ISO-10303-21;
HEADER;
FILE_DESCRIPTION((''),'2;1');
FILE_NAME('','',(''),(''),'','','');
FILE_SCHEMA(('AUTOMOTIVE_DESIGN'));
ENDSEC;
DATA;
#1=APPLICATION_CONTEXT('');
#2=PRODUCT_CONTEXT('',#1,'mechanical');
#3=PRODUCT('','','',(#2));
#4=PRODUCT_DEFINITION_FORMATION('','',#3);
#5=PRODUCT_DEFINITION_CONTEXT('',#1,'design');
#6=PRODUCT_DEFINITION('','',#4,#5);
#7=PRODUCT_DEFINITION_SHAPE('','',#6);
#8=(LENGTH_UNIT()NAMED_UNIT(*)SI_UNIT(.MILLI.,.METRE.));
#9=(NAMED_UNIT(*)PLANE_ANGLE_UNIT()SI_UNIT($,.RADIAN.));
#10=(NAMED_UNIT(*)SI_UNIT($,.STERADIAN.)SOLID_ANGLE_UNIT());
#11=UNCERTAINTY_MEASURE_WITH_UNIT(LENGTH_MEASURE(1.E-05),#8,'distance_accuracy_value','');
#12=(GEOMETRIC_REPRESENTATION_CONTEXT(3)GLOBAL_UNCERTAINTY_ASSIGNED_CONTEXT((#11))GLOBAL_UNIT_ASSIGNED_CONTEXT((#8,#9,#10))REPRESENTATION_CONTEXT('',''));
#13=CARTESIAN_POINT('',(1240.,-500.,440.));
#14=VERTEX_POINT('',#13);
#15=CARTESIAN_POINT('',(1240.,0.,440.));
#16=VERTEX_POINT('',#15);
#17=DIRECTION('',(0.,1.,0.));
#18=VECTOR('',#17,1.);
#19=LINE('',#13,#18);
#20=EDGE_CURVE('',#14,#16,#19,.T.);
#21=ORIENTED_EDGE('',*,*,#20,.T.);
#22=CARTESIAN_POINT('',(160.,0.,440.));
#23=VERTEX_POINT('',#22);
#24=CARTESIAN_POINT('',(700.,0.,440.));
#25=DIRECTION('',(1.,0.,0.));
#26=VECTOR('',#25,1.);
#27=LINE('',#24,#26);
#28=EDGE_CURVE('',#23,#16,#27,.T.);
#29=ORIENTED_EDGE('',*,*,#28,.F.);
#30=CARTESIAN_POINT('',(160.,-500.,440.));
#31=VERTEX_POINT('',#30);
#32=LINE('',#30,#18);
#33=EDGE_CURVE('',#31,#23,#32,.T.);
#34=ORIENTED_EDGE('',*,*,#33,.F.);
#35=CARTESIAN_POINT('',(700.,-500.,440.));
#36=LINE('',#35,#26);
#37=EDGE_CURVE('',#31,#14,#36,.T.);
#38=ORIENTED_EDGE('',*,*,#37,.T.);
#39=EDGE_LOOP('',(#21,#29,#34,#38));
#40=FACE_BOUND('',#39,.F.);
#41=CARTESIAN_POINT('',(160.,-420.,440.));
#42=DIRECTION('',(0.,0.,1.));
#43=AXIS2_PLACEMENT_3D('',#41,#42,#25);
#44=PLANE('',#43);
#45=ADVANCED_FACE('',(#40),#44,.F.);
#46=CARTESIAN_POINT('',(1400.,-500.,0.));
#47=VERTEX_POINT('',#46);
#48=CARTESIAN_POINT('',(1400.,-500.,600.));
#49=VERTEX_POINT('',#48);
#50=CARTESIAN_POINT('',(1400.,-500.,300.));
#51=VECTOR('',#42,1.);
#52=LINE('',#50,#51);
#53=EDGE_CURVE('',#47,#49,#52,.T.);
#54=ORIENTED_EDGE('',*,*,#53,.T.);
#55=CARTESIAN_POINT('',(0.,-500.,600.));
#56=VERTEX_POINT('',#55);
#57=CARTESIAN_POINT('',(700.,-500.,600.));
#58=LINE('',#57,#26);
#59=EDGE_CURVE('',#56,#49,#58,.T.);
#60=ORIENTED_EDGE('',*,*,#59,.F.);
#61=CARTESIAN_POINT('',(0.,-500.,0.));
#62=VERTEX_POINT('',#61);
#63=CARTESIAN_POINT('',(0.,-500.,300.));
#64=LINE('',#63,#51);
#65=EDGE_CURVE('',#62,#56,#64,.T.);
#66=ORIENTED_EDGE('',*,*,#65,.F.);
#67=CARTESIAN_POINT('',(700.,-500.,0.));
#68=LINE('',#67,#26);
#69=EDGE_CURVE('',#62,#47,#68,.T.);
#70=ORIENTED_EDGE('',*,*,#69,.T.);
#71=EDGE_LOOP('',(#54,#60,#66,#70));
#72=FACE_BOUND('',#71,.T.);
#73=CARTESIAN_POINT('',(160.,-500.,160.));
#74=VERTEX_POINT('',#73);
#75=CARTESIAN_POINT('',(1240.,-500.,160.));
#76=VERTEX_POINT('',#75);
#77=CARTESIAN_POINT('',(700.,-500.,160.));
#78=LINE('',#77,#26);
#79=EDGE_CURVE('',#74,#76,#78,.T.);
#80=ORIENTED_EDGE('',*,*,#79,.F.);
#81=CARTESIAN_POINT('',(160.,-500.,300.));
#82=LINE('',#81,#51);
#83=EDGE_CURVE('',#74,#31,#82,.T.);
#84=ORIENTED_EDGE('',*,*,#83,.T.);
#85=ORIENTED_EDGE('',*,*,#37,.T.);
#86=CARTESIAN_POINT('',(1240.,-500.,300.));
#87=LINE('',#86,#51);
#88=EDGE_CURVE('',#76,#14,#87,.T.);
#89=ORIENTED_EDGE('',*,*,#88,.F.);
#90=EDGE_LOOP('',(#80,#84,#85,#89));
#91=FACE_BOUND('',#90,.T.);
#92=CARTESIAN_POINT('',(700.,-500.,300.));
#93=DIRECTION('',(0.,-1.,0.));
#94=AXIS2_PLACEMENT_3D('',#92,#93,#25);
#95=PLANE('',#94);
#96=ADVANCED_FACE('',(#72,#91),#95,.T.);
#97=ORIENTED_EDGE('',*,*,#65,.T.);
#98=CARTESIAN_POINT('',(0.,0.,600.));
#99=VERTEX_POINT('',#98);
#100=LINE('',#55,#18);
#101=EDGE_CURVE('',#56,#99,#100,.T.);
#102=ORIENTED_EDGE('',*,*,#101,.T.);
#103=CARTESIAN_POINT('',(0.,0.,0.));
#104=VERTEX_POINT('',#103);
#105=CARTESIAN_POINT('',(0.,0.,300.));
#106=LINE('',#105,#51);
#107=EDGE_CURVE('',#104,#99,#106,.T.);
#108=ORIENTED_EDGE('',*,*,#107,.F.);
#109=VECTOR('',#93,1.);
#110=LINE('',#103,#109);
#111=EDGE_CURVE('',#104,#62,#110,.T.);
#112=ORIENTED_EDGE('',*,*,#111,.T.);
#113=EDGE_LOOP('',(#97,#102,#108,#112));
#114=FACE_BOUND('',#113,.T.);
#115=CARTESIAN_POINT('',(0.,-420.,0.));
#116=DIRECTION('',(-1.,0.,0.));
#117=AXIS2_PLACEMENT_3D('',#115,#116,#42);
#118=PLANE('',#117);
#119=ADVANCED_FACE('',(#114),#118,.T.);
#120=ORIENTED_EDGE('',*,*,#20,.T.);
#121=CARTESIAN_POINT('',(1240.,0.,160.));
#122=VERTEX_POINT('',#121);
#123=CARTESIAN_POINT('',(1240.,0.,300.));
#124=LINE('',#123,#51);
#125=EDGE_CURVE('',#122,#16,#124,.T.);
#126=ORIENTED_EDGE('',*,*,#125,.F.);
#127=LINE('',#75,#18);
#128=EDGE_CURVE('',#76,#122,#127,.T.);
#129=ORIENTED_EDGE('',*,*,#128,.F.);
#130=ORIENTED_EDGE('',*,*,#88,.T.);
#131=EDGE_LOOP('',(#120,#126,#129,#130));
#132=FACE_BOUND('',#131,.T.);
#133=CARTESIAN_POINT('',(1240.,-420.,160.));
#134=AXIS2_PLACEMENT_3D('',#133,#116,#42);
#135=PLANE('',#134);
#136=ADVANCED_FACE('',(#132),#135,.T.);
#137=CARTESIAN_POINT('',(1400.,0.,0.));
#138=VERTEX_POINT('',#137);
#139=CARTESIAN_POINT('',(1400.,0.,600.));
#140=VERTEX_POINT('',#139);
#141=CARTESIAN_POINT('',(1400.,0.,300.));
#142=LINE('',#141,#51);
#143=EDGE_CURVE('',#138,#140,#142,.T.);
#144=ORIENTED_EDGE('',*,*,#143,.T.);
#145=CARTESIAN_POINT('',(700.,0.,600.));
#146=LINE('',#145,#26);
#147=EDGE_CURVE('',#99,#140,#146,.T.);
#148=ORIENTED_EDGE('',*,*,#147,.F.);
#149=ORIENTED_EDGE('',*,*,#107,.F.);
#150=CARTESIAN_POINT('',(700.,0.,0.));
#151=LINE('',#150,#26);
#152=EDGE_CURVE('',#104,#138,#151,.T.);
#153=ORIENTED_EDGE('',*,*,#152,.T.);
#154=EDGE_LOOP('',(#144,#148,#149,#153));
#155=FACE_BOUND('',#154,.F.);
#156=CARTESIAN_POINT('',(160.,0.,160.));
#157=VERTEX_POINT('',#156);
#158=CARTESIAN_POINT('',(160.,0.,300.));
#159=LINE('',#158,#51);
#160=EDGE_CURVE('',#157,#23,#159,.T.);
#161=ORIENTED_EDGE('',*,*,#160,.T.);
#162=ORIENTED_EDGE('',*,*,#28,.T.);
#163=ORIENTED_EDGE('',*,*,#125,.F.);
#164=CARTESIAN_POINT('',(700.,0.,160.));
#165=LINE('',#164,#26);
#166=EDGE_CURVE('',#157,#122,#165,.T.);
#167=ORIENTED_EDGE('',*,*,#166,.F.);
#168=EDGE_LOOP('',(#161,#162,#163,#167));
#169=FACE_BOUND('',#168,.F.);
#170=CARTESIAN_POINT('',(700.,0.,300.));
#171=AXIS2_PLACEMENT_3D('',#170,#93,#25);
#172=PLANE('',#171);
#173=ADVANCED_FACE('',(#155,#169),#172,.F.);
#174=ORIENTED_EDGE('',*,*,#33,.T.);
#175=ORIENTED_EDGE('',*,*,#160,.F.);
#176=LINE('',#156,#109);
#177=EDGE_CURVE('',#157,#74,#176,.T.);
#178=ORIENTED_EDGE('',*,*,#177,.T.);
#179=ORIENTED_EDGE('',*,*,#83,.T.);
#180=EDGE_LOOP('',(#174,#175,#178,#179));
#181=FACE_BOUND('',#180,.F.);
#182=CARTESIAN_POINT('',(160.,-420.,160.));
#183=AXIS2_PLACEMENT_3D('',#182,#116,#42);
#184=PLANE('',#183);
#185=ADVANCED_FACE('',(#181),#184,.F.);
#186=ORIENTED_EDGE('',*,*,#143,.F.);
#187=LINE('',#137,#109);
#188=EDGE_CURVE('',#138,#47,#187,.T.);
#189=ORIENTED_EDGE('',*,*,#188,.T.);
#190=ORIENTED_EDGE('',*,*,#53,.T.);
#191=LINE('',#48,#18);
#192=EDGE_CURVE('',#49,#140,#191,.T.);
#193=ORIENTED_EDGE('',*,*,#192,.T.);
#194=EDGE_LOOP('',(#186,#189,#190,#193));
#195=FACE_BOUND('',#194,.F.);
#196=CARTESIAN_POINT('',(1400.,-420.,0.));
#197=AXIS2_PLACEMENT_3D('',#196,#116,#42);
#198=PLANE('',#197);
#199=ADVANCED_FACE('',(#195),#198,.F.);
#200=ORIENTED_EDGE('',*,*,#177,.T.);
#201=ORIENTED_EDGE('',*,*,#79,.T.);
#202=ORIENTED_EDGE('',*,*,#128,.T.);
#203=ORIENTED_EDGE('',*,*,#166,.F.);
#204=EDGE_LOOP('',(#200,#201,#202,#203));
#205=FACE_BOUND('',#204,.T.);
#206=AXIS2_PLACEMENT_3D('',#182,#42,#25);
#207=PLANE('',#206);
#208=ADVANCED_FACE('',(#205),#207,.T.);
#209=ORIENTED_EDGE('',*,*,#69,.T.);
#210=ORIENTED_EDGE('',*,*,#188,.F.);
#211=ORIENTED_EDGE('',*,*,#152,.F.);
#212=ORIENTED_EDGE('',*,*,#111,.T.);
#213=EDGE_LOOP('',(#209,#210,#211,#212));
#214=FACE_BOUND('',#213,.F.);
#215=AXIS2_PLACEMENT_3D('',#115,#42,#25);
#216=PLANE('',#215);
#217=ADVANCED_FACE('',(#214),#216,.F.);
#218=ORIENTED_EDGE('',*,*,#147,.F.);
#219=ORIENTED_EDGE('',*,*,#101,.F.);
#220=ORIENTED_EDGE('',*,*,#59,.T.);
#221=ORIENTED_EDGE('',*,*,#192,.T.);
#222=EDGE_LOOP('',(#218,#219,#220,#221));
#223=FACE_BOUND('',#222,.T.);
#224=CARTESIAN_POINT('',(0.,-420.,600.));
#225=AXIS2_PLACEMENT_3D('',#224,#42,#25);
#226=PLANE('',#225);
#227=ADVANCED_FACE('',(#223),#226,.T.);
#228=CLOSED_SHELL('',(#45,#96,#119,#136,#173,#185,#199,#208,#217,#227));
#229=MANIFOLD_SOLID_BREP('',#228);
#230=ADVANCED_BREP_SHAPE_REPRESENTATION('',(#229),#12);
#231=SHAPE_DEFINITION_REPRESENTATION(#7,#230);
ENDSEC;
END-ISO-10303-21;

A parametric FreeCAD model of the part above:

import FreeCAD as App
import Part
import Sketcher

V = App.Vector


def add_polygon(sketch, points):
    """Adds a closed chain of lines whose ends are joined by coincident constraints."""
    first, n = sketch.GeometryCount, len(points)
    for a, b in zip(points, points[1:] + points[:1]):
        sketch.addGeometry(Part.LineSegment(App.Vector(*a, 0), App.Vector(*b, 0)), False)
    for i in range(n):
        sketch.addConstraint(Sketcher.Constraint("Coincident", first + i, 2, first + (i + 1) % n, 1))

doc = App.newDocument("Part")
body = doc.addObject("PartDesign::Body", "Body")

# Sketch on XZ plane
sketch1 = doc.addObject("Sketcher::SketchObject", "Sketch")
body.addObject(sketch1)
sketch1.AttachmentSupport = (doc.XZ_Plane, [""])
sketch1.MapMode = "FlatFace"
add_polygon(sketch1, [(0, 600), (0, 0), (1400, 0), (1400, 600)])  # lines 0-3
add_polygon(sketch1, [(1240, 160), (160, 160), (160, 440), (1240, 440)])  # lines 4-7
sketch1.addConstraint([
    Sketcher.Constraint("Vertical", 0),
    Sketcher.Constraint("Horizontal", 1),
    Sketcher.Constraint("Vertical", 2),
    Sketcher.Constraint("Horizontal", 3),
    Sketcher.Constraint("Horizontal", 4),
    Sketcher.Constraint("Vertical", 5),
    Sketcher.Constraint("Horizontal", 6),
    Sketcher.Constraint("Vertical", 7),
    Sketcher.Constraint("Coincident", 0, 2, -1, 1),
    Sketcher.Constraint("DistanceX", 1, 1, 1, 2, 1400.0),
    Sketcher.Constraint("DistanceX", 4, 2, 4, 1, 1080.0),
    Sketcher.Constraint("DistanceY", 0, 2, 0, 1, 600.0),
    Sketcher.Constraint("DistanceY", 5, 1, 5, 2, 280.0),
    Sketcher.Constraint("DistanceX", -1, 1, 4, 2, 160.0),
    Sketcher.Constraint("DistanceY", -1, 1, 4, 2, 160.0),
])
pad1 = doc.addObject("PartDesign::Pad", "Pad")
body.addObject(pad1)
pad1.Profile = sketch1
pad1.Length = 420

# Sketch on XZ plane
sketch2 = doc.addObject("Sketcher::SketchObject", "Sketch001")
body.addObject(sketch2)
sketch2.AttachmentSupport = (doc.XZ_Plane, [""])
sketch2.MapMode = "FlatFace"
sketch2.AttachmentOffset = App.Placement(V(0, 0, 420), App.Rotation())
add_polygon(sketch2, [(0, 600), (0, 0), (1400, 0), (1400, 600)])  # lines 0-3
add_polygon(sketch2, [(1240, 160), (160, 160), (160, 440), (1240, 440)])  # lines 4-7
sketch2.addConstraint([
    Sketcher.Constraint("Vertical", 0),
    Sketcher.Constraint("Horizontal", 1),
    Sketcher.Constraint("Vertical", 2),
    Sketcher.Constraint("Horizontal", 3),
    Sketcher.Constraint("Horizontal", 4),
    Sketcher.Constraint("Vertical", 5),
    Sketcher.Constraint("Horizontal", 6),
    Sketcher.Constraint("Vertical", 7),
    Sketcher.Constraint("Coincident", 0, 2, -1, 1),
    Sketcher.Constraint("DistanceX", 1, 1, 1, 2, 1400.0),
    Sketcher.Constraint("DistanceX", 4, 2, 4, 1, 1080.0),
    Sketcher.Constraint("DistanceY", 0, 2, 0, 1, 600.0),
    Sketcher.Constraint("DistanceY", 5, 1, 5, 2, 280.0),
    Sketcher.Constraint("DistanceX", -1, 1, 4, 2, 160.0),
    Sketcher.Constraint("DistanceY", -1, 1, 4, 2, 160.0),
])
pad2 = doc.addObject("PartDesign::Pad", "Pad001")
body.addObject(pad2)
pad2.Profile = sketch2
pad2.Length = 80

doc.recompute()
